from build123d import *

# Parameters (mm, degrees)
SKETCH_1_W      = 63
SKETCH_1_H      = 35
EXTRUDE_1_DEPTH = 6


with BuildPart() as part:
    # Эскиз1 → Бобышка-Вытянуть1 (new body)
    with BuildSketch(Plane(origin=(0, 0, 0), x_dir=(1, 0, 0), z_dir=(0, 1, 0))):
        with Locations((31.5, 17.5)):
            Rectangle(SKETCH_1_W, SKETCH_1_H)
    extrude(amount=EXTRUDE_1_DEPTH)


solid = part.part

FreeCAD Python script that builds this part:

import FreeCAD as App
import Part
import Sketcher
from FreeCAD import Vector


def add_polygon(sketch, points):
    """Adds a closed chain of lines whose ends are joined by coincident constraints."""
    first, n = sketch.GeometryCount, len(points)
    for a, b in zip(points, points[1:] + points[:1]):
        sketch.addGeometry(Part.LineSegment(App.Vector(*a, 0), App.Vector(*b, 0)), False)
    for i in range(n):
        sketch.addConstraint(Sketcher.Constraint("Coincident", first + i, 2, first + (i + 1) % n, 1))

doc = App.newDocument("Part")
params = doc.addObject("Spreadsheet::Sheet", "Params")
for row, (alias, value) in enumerate([
    ("sketch1_width", "63 mm"),
    ("sketch1_height", "35 mm"),
    ("pad1_length", "6 mm"),
], start=1):
    params.set(f"A{row}", alias)
    params.set(f"B{row}", "=" + value)
    params.setAlias(f"B{row}", alias)

body = doc.addObject("PartDesign::Body", "Body")

sketch1 = body.newObject("Sketcher::SketchObject", "Sketch")
sketch1.AttachmentSupport = (doc.getObject("XZ_Plane"), [""])
sketch1.MapMode = "FlatFace"
add_polygon(sketch1, [(0, -35), (0, 0), (63, 0), (63, -35)])
sketch1.addConstraint([
    Sketcher.Constraint("Vertical", 0),
    Sketcher.Constraint("Horizontal", 1),
    Sketcher.Constraint("Vertical", 2),
    Sketcher.Constraint("Horizontal", 3),
    Sketcher.Constraint("Coincident", 0, 2, -1, 1),
    Sketcher.Constraint("DistanceX", 1, 1, 1, 2, 63.0),
    Sketcher.Constraint("DistanceY", 0, 1, 0, 2, 35.0),
])
sketch1.setExpression("Constraints[9]", "Params.sketch1_width")
sketch1.setExpression("Constraints[10]", "Params.sketch1_height")
pad1 = body.newObject("PartDesign::Pad", "Pad")
pad1.Profile = sketch1
pad1.setExpression("Length", "Params.pad1_length")
pad1.Reversed = True

doc.recompute()
